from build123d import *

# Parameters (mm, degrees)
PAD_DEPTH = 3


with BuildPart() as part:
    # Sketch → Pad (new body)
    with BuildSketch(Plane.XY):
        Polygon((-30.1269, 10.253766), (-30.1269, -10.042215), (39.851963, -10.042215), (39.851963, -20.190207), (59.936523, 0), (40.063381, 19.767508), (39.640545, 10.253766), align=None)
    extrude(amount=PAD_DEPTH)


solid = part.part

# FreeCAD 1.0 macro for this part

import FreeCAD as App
import Part
import Sketcher

V = App.Vector
Q = App.Units.Quantity


def add_polygon(sketch, points):
    """Adds a closed chain of lines whose ends are joined by coincident constraints."""
    first, n = sketch.GeometryCount, len(points)
    for a, b in zip(points, points[1:] + points[:1]):
        sketch.addGeometry(Part.LineSegment(App.Vector(*a, 0), App.Vector(*b, 0)), False)
    for i in range(n):
        sketch.addConstraint(Sketcher.Constraint("Coincident", first + i, 2, first + (i + 1) % n, 1))

doc = App.newDocument("Part")
body = doc.addObject("PartDesign::Body", "Body")

sketch1 = body.newObject("Sketcher::SketchObject", "Sketch")
sketch1.AttachmentSupport = (doc.getObject("XY_Plane"), [""])
sketch1.MapMode = "FlatFace"
add_polygon(sketch1, [(-30, 10), (-30, -10), (40, -10), (40, -20), (60, 0), (40, 20), (40, 10)])
sketch1.addConstraint([
    Sketcher.Constraint("Vertical", 0),
    Sketcher.Constraint("Horizontal", 1),
    Sketcher.Constraint("Vertical", 2),
    Sketcher.Constraint("Horizontal", 6),
    Sketcher.Constraint("PointOnObject", 3, 2, -1),
    Sketcher.Constraint("DistanceY", 0, 2, 0, 1, Q("20.295981 mm")),
    Sketcher.Constraint("DistanceX", 0, 2, -1, 1, Q("30.1269 mm")),
    Sketcher.Constraint("Distance", 3, Q("28.478659 mm")),
    Sketcher.Constraint("Distance", 4, Q("28.030272 mm")),
    Sketcher.Constraint("DistanceX", 1, 1, 1, 2, Q("69.978863 mm")),
    Sketcher.Constraint("DistanceX", 6, 2, 6, 1, Q("69.767445 mm")),
    Sketcher.Constraint("DistanceY", 2, 2, 2, 1, Q("10.147992 mm")),
    Sketcher.Constraint("DistanceX", -1, 1, 4, 2, Q("40.063381 mm")),
    Sketcher.Constraint("DistanceX", 1, 2, 3, 2, Q("20.08456 mm")),
])
pad1 = body.newObject("PartDesign::Pad", "Pad")
pad1.Profile = sketch1
pad1.Length = 3

doc.recompute()
